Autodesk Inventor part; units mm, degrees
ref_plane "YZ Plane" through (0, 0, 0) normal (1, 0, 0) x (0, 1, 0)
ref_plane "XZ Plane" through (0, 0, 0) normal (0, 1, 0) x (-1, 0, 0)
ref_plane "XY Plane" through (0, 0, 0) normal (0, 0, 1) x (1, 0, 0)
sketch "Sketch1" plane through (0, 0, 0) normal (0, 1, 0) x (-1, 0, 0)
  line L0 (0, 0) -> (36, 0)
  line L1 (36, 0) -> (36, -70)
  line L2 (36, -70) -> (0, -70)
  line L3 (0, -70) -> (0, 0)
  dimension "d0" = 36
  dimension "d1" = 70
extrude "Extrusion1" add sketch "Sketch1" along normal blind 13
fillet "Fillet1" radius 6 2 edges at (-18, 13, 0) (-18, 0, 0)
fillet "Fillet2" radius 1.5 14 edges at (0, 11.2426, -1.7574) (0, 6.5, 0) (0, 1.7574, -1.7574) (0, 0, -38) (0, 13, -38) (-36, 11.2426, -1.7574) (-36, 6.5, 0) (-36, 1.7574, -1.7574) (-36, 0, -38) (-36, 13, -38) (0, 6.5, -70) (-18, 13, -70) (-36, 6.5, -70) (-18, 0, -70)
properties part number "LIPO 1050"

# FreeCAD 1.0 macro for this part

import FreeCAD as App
import Part
import Sketcher
from FreeCAD import Vector
Q = App.Units.Quantity


def edges_at(feature, points):
    """Names of the edges that pass closest to the given points."""
    edges = feature.Shape.Edges
    near = lambda p: min(range(len(edges)), key=lambda i: edges[i].distToShape(Part.Vertex(*p))[0])
    return sorted({f"Edge{near(p) + 1}" for p in points})

doc = App.newDocument("Part")
body = doc.addObject("PartDesign::Body", "Body")

# Sketch on XZ plane
sketch1 = doc.addObject("Sketcher::SketchObject", "Sketch")
body.addObject(sketch1)
sketch1.AttachmentSupport = (doc.XZ_Plane, [""])
sketch1.MapMode = "FlatFace"
sketch1.addGeometry(Part.LineSegment(Vector(-36, 0, 0), Vector(0, 0, 0)), False)
sketch1.addGeometry(Part.LineSegment(Vector(0, 0, 0), Vector(0, -70, 0)), False)
sketch1.addGeometry(Part.LineSegment(Vector(0, -70, 0), Vector(-36, -70, 0)), False)
sketch1.addGeometry(Part.LineSegment(Vector(-36, -70, 0), Vector(-36, 0, 0)), False)
sketch1.addConstraint(Sketcher.Constraint("Coincident", 0, 2, 1, 1))
sketch1.addConstraint(Sketcher.Constraint("Coincident", 1, 2, 2, 1))
sketch1.addConstraint(Sketcher.Constraint("Coincident", 2, 2, 3, 1))
sketch1.addConstraint(Sketcher.Constraint("Coincident", 3, 2, 0, 1))
sketch1.addConstraint(Sketcher.Constraint("Horizontal", 0))
sketch1.addConstraint(Sketcher.Constraint("Vertical", 1))
sketch1.addConstraint(Sketcher.Constraint("Horizontal", 2))
sketch1.addConstraint(Sketcher.Constraint("Vertical", 3))
sketch1.addConstraint(Sketcher.Constraint("Coincident", 0, 2, -1, 1))
sketch1.addConstraint(Sketcher.Constraint("DistanceX", 0, 1, 0, 2, Q("36 mm")))
sketch1.addConstraint(Sketcher.Constraint("DistanceY", 1, 2, 1, 1, Q("70 mm")))
pad1 = doc.addObject("PartDesign::Pad", "Pad")
body.addObject(pad1)
pad1.Profile = sketch1
pad1.Length = 13
pad1.Reversed = True
doc.recompute()

fillet = doc.addObject("PartDesign::Fillet", "Fillet")
body.addObject(fillet)
fillet.Base = (pad1, edges_at(pad1, [(-18, 13, 0), (-18, 0, 0)]))
fillet.Radius = 6
doc.recompute()

fillet2 = doc.addObject("PartDesign::Fillet", "Fillet001")
body.addObject(fillet2)
fillet2.Base = (fillet, ["Edge1"])
fillet2.UseAllEdges = True
fillet2.Radius = 1.5

doc.recompute()
